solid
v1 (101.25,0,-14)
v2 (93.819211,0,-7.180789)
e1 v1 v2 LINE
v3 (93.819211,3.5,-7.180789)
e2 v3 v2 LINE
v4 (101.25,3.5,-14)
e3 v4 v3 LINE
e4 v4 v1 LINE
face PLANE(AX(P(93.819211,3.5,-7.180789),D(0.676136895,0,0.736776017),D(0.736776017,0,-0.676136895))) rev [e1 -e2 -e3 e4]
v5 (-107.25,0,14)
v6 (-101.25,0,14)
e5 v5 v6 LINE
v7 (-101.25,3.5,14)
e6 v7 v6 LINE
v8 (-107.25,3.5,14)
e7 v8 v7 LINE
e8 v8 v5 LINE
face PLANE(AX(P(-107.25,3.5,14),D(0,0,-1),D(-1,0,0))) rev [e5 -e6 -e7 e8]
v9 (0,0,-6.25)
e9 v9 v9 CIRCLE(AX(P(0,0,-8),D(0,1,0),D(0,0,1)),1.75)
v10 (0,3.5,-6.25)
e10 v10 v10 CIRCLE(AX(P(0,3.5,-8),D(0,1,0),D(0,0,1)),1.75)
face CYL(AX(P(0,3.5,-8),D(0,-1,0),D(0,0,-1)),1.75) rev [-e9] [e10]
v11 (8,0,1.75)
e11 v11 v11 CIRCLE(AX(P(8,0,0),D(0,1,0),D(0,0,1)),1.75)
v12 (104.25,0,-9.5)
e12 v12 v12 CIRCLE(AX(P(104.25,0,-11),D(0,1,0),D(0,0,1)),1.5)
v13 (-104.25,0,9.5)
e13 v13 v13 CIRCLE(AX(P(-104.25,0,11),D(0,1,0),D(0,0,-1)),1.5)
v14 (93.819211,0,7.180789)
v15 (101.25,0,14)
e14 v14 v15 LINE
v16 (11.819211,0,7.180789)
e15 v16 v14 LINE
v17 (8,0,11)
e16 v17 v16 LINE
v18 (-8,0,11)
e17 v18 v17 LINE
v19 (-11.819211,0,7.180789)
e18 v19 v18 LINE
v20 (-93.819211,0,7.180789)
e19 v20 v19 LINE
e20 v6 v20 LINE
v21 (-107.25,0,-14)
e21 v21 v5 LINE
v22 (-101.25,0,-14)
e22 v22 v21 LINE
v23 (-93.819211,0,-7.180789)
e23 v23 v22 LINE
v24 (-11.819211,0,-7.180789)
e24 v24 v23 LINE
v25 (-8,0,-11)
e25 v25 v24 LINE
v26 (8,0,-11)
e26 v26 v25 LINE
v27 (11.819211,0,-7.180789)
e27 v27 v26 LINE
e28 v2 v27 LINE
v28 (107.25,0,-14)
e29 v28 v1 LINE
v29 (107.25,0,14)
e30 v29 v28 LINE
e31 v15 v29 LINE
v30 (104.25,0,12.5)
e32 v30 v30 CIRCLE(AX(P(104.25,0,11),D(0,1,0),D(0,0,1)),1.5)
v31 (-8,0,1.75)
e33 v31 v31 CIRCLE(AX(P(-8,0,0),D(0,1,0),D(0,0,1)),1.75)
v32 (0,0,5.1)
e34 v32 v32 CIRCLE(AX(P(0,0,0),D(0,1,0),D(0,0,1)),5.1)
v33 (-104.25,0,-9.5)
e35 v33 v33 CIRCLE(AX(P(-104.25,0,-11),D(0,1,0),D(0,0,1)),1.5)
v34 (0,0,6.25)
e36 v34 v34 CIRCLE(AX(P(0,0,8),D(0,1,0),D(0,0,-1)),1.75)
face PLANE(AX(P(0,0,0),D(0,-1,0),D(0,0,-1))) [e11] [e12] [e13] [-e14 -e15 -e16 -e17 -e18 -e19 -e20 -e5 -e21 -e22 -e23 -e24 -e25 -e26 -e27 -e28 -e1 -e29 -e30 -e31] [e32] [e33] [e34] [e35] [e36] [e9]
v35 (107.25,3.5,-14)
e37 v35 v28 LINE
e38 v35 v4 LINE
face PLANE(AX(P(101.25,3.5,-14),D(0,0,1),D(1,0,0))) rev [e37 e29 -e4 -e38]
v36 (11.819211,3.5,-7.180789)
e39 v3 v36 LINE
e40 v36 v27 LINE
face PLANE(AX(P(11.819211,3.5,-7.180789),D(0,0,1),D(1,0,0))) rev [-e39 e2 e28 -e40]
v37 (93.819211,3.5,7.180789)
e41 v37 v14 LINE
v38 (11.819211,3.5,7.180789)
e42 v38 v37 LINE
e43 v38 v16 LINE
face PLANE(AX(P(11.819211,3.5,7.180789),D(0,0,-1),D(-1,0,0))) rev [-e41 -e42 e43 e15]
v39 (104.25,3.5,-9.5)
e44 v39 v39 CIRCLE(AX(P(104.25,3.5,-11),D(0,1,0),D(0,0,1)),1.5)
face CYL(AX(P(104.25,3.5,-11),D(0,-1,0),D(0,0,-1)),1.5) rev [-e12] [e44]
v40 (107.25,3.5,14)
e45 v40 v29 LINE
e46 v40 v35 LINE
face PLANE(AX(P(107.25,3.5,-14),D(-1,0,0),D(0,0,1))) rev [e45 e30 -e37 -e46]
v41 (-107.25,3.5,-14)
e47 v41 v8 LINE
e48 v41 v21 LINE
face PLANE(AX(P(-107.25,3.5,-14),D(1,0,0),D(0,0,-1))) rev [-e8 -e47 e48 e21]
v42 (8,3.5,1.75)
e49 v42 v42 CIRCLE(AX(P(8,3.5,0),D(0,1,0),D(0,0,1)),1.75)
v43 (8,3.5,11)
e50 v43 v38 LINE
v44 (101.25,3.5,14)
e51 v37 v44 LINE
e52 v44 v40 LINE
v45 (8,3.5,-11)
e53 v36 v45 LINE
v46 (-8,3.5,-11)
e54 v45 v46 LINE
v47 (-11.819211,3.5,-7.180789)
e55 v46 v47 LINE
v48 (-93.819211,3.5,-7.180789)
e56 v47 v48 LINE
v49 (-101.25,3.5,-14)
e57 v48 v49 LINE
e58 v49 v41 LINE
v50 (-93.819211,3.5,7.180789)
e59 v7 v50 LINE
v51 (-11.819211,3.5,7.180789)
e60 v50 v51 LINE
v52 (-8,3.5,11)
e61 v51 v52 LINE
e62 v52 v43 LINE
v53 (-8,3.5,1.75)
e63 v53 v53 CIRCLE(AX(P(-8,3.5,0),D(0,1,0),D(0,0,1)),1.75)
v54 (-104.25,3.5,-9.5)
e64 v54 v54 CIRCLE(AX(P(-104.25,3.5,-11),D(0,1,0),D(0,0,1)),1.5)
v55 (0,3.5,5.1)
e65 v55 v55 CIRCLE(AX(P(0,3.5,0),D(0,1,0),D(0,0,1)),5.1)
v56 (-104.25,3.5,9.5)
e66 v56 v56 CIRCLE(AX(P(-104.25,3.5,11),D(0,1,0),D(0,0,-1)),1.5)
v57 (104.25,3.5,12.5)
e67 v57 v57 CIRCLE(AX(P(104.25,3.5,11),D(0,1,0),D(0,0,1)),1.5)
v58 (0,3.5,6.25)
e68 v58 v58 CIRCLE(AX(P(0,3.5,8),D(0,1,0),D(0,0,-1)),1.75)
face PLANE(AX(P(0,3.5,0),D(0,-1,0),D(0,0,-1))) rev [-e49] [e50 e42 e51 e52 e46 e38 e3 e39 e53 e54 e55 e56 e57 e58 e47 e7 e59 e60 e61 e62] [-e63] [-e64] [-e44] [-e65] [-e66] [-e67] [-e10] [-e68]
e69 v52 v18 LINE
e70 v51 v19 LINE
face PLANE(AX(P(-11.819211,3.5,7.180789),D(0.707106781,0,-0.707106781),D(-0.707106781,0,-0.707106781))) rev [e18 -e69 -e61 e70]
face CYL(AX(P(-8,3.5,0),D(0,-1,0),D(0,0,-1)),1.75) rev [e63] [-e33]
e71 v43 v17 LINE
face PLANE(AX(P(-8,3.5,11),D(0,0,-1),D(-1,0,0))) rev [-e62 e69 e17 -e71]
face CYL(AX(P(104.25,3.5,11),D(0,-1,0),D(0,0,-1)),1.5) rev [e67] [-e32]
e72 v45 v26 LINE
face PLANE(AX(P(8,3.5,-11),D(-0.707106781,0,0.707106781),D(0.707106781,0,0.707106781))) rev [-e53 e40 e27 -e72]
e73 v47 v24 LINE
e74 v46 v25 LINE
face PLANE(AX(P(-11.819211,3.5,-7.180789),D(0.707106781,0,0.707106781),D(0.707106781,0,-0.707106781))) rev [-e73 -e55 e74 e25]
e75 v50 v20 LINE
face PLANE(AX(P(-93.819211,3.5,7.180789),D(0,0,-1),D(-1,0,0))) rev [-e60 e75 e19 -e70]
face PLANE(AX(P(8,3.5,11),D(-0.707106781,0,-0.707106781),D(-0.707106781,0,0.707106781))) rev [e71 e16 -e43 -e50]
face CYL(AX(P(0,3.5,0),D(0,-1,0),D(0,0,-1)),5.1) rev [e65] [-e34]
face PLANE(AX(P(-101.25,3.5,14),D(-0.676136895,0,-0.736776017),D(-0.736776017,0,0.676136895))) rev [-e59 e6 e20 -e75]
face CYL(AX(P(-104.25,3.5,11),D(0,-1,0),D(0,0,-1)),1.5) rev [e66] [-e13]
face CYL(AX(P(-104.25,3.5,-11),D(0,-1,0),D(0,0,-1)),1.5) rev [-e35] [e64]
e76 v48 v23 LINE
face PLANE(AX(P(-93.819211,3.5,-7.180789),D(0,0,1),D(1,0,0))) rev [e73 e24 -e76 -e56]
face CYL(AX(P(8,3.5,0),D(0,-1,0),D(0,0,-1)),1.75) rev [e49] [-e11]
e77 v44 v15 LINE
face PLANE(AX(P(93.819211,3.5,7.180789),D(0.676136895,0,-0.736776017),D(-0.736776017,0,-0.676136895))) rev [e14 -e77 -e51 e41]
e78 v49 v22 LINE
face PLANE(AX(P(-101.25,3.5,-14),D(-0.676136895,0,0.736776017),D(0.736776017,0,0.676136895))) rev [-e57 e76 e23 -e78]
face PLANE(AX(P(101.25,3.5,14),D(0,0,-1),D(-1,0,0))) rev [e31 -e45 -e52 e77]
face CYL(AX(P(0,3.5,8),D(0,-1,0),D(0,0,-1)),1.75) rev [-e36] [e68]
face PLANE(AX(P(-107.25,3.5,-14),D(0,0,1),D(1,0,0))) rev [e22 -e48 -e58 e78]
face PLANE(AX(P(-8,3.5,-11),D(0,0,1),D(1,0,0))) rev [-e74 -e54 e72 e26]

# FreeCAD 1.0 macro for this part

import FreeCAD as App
import Part
import Sketcher
Q = App.Units.Quantity

doc = App.newDocument("Part")
body = doc.addObject("PartDesign::Body", "Body")

# Sketch on XZ plane
sketch1 = doc.addObject("Sketcher::SketchObject", "Sketch")
body.addObject(sketch1)
sketch1.AttachmentSupport = (doc.XZ_Plane, [""])
sketch1.MapMode = "FlatFace"
sketch1.addGeometry([
    Part.LineSegment(App.Vector(-11.819211, -7.180789, 0), App.Vector(-93.819211, -7.180789, 0)),  # 0
    Part.LineSegment(App.Vector(-93.819211, -7.180789, 0), App.Vector(-101.25, -14, 0)),  # 1
    Part.LineSegment(App.Vector(-101.25, -14, 0), App.Vector(-107.25, -14, 0)),  # 2
    Part.LineSegment(App.Vector(-107.25, -14, 0), App.Vector(-107.25, 14, 0)),  # 3
    Part.LineSegment(App.Vector(-107.25, 14, 0), App.Vector(-101.25, 14, 0)),  # 4
    Part.LineSegment(App.Vector(-101.25, 14, 0), App.Vector(-93.819211, 7.180789, 0)),  # 5
    Part.LineSegment(App.Vector(-93.819211, 7.180789, 0), App.Vector(-11.819211, 7.180789, 0)),  # 6
    Part.LineSegment(App.Vector(-11.819211, 7.180789, 0), App.Vector(-8, 11, 0)),  # 7
    Part.LineSegment(App.Vector(-8, 11, 0), App.Vector(8, 11, 0)),  # 8
    Part.LineSegment(App.Vector(8, 11, 0), App.Vector(11.819211, 7.180789, 0)),  # 9
    Part.LineSegment(App.Vector(11.819211, 7.180789, 0), App.Vector(93.819211, 7.180789, 0)),  # 10
    Part.LineSegment(App.Vector(93.819211, 7.180789, 0), App.Vector(101.25, 14, 0)),  # 11
    Part.LineSegment(App.Vector(101.25, 14, 0), App.Vector(107.25, 14, 0)),  # 12
    Part.LineSegment(App.Vector(107.25, 14, 0), App.Vector(107.25, -14, 0)),  # 13
    Part.LineSegment(App.Vector(107.25, -14, 0), App.Vector(101.25, -14, 0)),  # 14
    Part.LineSegment(App.Vector(101.25, -14, 0), App.Vector(93.819211, -7.180789, 0)),  # 15
    Part.LineSegment(App.Vector(93.819211, -7.180789, 0), App.Vector(11.819211, -7.180789, 0)),  # 16
    Part.LineSegment(App.Vector(11.819211, -7.180789, 0), App.Vector(8, -11, 0)),  # 17
    Part.LineSegment(App.Vector(8, -11, 0), App.Vector(-8, -11, 0)),  # 18
    Part.LineSegment(App.Vector(-8, -11, 0), App.Vector(-11.819211, -7.180789, 0)),  # 19
    Part.Circle(App.Vector(104.25, 11, 0), App.Vector(0, 0, 1), 1.5),  # 20
    Part.Circle(App.Vector(0, 8, 0), App.Vector(0, 0, 1), 1.75),  # 21
    Part.Circle(App.Vector(-104.25, 11, 0), App.Vector(0, 0, 1), 1.5),  # 22
    Part.Circle(App.Vector(8, 0, 0), App.Vector(0, 0, 1), 1.75),  # 23
    Part.Circle(App.Vector(104.25, -11, 0), App.Vector(0, 0, 1), 1.5),  # 24
    Part.Circle(App.Vector(0, 0, 0), App.Vector(0, 0, 1), 5.1),  # 25
    Part.Circle(App.Vector(-8, 0, 0), App.Vector(0, 0, 1), 1.75),  # 26
    Part.Circle(App.Vector(0, -8, 0), App.Vector(0, 0, 1), 1.75),  # 27
    Part.Circle(App.Vector(-104.25, -11, 0), App.Vector(0, 0, 1), 1.5),  # 28
], False)
sketch1.addConstraint([
    Sketcher.Constraint("Coincident", 0, 2, 1, 1),
    Sketcher.Constraint("Coincident", 1, 2, 2, 1),
    Sketcher.Constraint("Coincident", 2, 2, 3, 1),
    Sketcher.Constraint("Coincident", 3, 2, 4, 1),
    Sketcher.Constraint("Coincident", 4, 2, 5, 1),
    Sketcher.Constraint("Coincident", 5, 2, 6, 1),
    Sketcher.Constraint("Coincident", 6, 2, 7, 1),
    Sketcher.Constraint("Coincident", 7, 2, 8, 1),
    Sketcher.Constraint("Coincident", 8, 2, 9, 1),
    Sketcher.Constraint("Coincident", 9, 2, 10, 1),
    Sketcher.Constraint("Coincident", 10, 2, 11, 1),
    Sketcher.Constraint("Coincident", 11, 2, 12, 1),
    Sketcher.Constraint("Coincident", 12, 2, 13, 1),
    Sketcher.Constraint("Coincident", 13, 2, 14, 1),
    Sketcher.Constraint("Coincident", 14, 2, 15, 1),
    Sketcher.Constraint("Coincident", 15, 2, 16, 1),
    Sketcher.Constraint("Coincident", 16, 2, 17, 1),
    Sketcher.Constraint("Coincident", 17, 2, 18, 1),
    Sketcher.Constraint("Coincident", 18, 2, 19, 1),
    Sketcher.Constraint("Coincident", 19, 2, 0, 1),
    Sketcher.Constraint("Horizontal", 0),
    Sketcher.Constraint("Horizontal", 2),
    Sketcher.Constraint("Vertical", 3),
    Sketcher.Constraint("Horizontal", 4),
    Sketcher.Constraint("Horizontal", 6),
    Sketcher.Constraint("Horizontal", 8),
    Sketcher.Constraint("Horizontal", 10),
    Sketcher.Constraint("Horizontal", 12),
    Sketcher.Constraint("Vertical", 13),
    Sketcher.Constraint("Horizontal", 14),
    Sketcher.Constraint("Horizontal", 16),
    Sketcher.Constraint("Horizontal", 18),
    Sketcher.Constraint("Coincident", 25, 3, -1, 1),
    Sketcher.Constraint("Equal", 20, 22),
    Sketcher.Constraint("Equal", 21, 23),
    Sketcher.Constraint("Equal", 22, 24),
    Sketcher.Constraint("Equal", 23, 26),
    Sketcher.Constraint("Equal", 26, 27),
    Sketcher.Constraint("Equal", 24, 28),
    Sketcher.Constraint("Symmetric", 22, 3, 24, 3, -1, 1),
    Sketcher.Constraint("Symmetric", 23, 3, 26, 3, -1, 1),
    Sketcher.Constraint("Symmetric", 21, 3, 27, 3, -1, 1),
    Sketcher.Constraint("Symmetric", 20, 3, 28, 3, -1, 1),
    Sketcher.Constraint("Symmetric", 0, 2, 10, 2, -1, 1),
    Sketcher.Constraint("Symmetric", 1, 2, 11, 2, -1, 1),
    Sketcher.Constraint("Symmetric", 3, 2, 13, 2, -1, 1),
    Sketcher.Constraint("Symmetric", 5, 2, 15, 2, -1, 1),
    Sketcher.Constraint("Symmetric", 7, 2, 17, 2, -1, 1),
    Sketcher.Constraint("Symmetric", 20, 3, 22, 3, -2),
    Sketcher.Constraint("Symmetric", 6, 2, 9, 2, -2),
    Sketcher.Constraint("Symmetric", 4, 2, 11, 2, -2),
    Sketcher.Constraint("PointOnObject", 21, 3, -2),
    Sketcher.Constraint("PointOnObject", 23, 3, -1),
    Sketcher.Constraint("Perpendicular", 7, 9),
    Sketcher.Constraint("Parallel", 5, 15),
    Sketcher.Constraint("Perpendicular", 9, 17),
    Sketcher.Constraint("Perpendicular", 17, 19),
    Sketcher.Constraint("Horizontal", 22, 3, 7, 2),
    Sketcher.Constraint("Vertical", 0, 2, 5, 2),
    Sketcher.Constraint("Vertical", 26, 3, 7, 2),
    Sketcher.Constraint("Vertical", 23, 3, 8, 2),
    Sketcher.Constraint("Vertical", 7, 2, 18, 2),
    Sketcher.Constraint("Diameter", 20, Q("3 mm")),
    Sketcher.Constraint("Diameter", 21, Q("3.5 mm")),
    Sketcher.Constraint("Diameter", 25, Q("10.2 mm")),
    Sketcher.Constraint("DistanceX", 0, 2, 0, 1, Q("82 mm")),
    Sketcher.Constraint("DistanceX", 2, 2, 2, 1, Q("6 mm")),
    Sketcher.Constraint("DistanceX", 8, 1, 8, 2, Q("16 mm")),
    Sketcher.Constraint("DistanceY", 3, 1, 3, 2, Q("28 mm")),
    Sketcher.Constraint("DistanceY", -1, 1, 20, 3, Q("11 mm")),
    Sketcher.Constraint("DistanceY", -1, 1, 21, 3, Q("8 mm")),
    Sketcher.Constraint("DistanceX", 28, 3, 1, 2, Q("3 mm")),
    Sketcher.Constraint("DistanceX", 22, 3, 20, 3, Q("208.5 mm")),
    Sketcher.Constraint("Distance", 7, Q("5.401179 mm")),
])
pad1 = doc.addObject("PartDesign::Pad", "Pad")
body.addObject(pad1)
pad1.Profile = sketch1
pad1.Length = 3.5
pad1.Reversed = True

doc.recompute()
